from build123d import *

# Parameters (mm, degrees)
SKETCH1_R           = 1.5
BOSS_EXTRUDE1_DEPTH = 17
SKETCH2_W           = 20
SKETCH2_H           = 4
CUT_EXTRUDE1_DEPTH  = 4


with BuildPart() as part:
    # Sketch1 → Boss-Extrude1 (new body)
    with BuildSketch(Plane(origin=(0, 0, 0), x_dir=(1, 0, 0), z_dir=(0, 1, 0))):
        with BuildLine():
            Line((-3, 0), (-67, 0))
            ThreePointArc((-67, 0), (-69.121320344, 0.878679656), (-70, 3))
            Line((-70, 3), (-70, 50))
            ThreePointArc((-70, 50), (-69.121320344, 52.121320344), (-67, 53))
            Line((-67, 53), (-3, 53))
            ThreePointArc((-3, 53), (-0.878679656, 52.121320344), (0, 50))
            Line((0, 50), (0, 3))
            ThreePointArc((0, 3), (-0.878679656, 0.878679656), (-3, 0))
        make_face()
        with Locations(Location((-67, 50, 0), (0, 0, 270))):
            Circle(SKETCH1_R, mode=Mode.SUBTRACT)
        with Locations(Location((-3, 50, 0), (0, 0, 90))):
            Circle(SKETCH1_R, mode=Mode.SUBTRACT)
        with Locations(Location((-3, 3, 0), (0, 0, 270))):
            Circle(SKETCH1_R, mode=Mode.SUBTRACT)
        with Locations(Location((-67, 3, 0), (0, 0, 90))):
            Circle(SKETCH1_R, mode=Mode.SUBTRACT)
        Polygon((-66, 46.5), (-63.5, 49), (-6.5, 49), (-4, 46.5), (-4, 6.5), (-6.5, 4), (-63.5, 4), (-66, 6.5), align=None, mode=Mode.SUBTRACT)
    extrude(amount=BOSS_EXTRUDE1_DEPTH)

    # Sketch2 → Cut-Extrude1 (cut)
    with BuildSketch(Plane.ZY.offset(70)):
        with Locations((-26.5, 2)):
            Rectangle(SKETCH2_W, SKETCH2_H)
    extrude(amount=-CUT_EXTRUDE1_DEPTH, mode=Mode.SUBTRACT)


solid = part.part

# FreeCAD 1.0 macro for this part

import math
import FreeCAD as App
import Part
import Sketcher


def add_polygon(sketch, points):
    """Adds a closed chain of lines whose ends are joined by coincident constraints."""
    first, n = sketch.GeometryCount, len(points)
    for a, b in zip(points, points[1:] + points[:1]):
        sketch.addGeometry(Part.LineSegment(App.Vector(*a, 0), App.Vector(*b, 0)), False)
    for i in range(n):
        sketch.addConstraint(Sketcher.Constraint("Coincident", first + i, 2, first + (i + 1) % n, 1))

doc = App.newDocument("Part")
body = doc.addObject("PartDesign::Body", "Body")

# Sketch on XZ plane
sketch1 = body.newObject("Sketcher::SketchObject", "Sketch")
sketch1.AttachmentSupport = (doc.getObject("XZ_Plane"), [""])
sketch1.MapMode = "FlatFace"
sketch1.addGeometry(Part.LineSegment(App.Vector(-67, 0, 0), App.Vector(-3, 0, 0)), False)  # 0
sketch1.addGeometry(Part.ArcOfCircle(Part.Circle(App.Vector(-3, -3, 0), App.Vector(0, 0, 1), 3), math.radians(0), math.radians(90)), False)  # 1
sketch1.addGeometry(Part.LineSegment(App.Vector(0, -3, 0), App.Vector(0, -50, 0)), False)  # 2
sketch1.addGeometry(Part.ArcOfCircle(Part.Circle(App.Vector(-3, -50, 0), App.Vector(0, 0, 1), 3), math.radians(-90), math.radians(0)), False)  # 3
sketch1.addGeometry(Part.LineSegment(App.Vector(-3, -53, 0), App.Vector(-67, -53, 0)), False)  # 4
sketch1.addGeometry(Part.ArcOfCircle(Part.Circle(App.Vector(-67, -50, 0), App.Vector(0, 0, 1), 3), math.radians(180), math.radians(270)), False)  # 5
sketch1.addGeometry(Part.LineSegment(App.Vector(-70, -50, 0), App.Vector(-70, -3, 0)), False)  # 6
sketch1.addGeometry(Part.ArcOfCircle(Part.Circle(App.Vector(-67, -3, 0), App.Vector(0, 0, 1), 3), math.radians(90), math.radians(180)), False)  # 7
sketch1.addGeometry(Part.Circle(App.Vector(-3, -3, 0), App.Vector(0, 0, 1), 1.5), False)  # 8
sketch1.addGeometry(Part.Circle(App.Vector(-67, -3, 0), App.Vector(0, 0, 1), 1.5), False)  # 9
sketch1.addGeometry(Part.Circle(App.Vector(-3, -50, 0), App.Vector(0, 0, 1), 1.5), False)  # 10
add_polygon(sketch1, [(-66, -46.5), (-63.5, -49), (-6.5, -49), (-4, -46.5), (-4, -6.5), (-6.5, -4), (-63.5, -4), (-66, -6.5)])  # lines 11-18
sketch1.addGeometry(Part.Circle(App.Vector(-67, -50, 0), App.Vector(0, 0, 1), 1.5), False)  # 19
sketch1.addConstraint([
    Sketcher.Constraint("Tangent", 0, 2, 1, 2),
    Sketcher.Constraint("Tangent", 1, 1, 2, 1),
    Sketcher.Constraint("Tangent", 2, 2, 3, 2),
    Sketcher.Constraint("Tangent", 3, 1, 4, 1),
    Sketcher.Constraint("Tangent", 4, 2, 5, 2),
    Sketcher.Constraint("Tangent", 5, 1, 6, 1),
    Sketcher.Constraint("Tangent", 6, 2, 7, 2),
    Sketcher.Constraint("Tangent", 7, 1, 0, 1),
    Sketcher.Constraint("Horizontal", 0),
    Sketcher.Constraint("Vertical", 2),
    Sketcher.Constraint("Horizontal", 4),
    Sketcher.Constraint("Vertical", 6),
    Sketcher.Constraint("Horizontal", 12),
    Sketcher.Constraint("Vertical", 14),
    Sketcher.Constraint("Horizontal", 16),
    Sketcher.Constraint("Vertical", 18),
    Sketcher.Constraint("Coincident", 8, 3, 1, 3),
    Sketcher.Constraint("Coincident", 9, 3, 7, 3),
    Sketcher.Constraint("Coincident", 10, 3, 3, 3),
    Sketcher.Constraint("Coincident", 19, 3, 5, 3),
    Sketcher.Constraint("Equal", 1, 3),
    Sketcher.Constraint("Equal", 3, 5),
    Sketcher.Constraint("Equal", 5, 7),
    Sketcher.Constraint("Equal", 8, 9),
    Sketcher.Constraint("Equal", 9, 10),
    Sketcher.Constraint("Equal", 10, 19),
    Sketcher.Constraint("PointOnObject", 0, 2, -1),
    Sketcher.Constraint("PointOnObject", 1, 1, -2),
    Sketcher.Constraint("Perpendicular", 11, 13),
    Sketcher.Constraint("Perpendicular", 13, 15),
    Sketcher.Constraint("Perpendicular", 15, 17),
    Sketcher.Constraint("Horizontal", 14, 2, 17, 2),
    Sketcher.Constraint("Horizontal", 13, 2, 18, 2),
    Sketcher.Constraint("Vertical", 12, 2, 15, 2),
    Sketcher.Constraint("Vertical", 11, 2, 16, 2),
    Sketcher.Constraint("Diameter", 8, 3.0),
    Sketcher.Constraint("Radius", 1, 3.0),
    Sketcher.Constraint("DistanceX", 0, 1, 0, 2, 64.0),
    Sketcher.Constraint("DistanceX", 12, 1, 12, 2, 57.0),
    Sketcher.Constraint("DistanceY", 2, 2, 2, 1, 47.0),
    Sketcher.Constraint("DistanceY", 14, 1, 14, 2, 40.0),
    Sketcher.Constraint("DistanceY", 11, 2, -1, 1, 49.0),
    Sketcher.Constraint("DistanceX", 13, 2, -1, 1, 4.0),
    Sketcher.Constraint("DistanceY", 15, 2, -1, 1, 4.0),
])
pad1 = body.newObject("PartDesign::Pad", "Pad")
pad1.Profile = sketch1
pad1.Length = 17
pad1.Reversed = True

# Sketch on YZ plane
sketch2 = body.newObject("Sketcher::SketchObject", "Sketch001")
sketch2.AttachmentSupport = (doc.getObject("YZ_Plane"), [""])
sketch2.MapMode = "FlatFace"
sketch2.AttachmentOffset = App.Placement(App.Vector(0, 0, -70), App.Rotation())
add_polygon(sketch2, [(4, -36.5), (0, -36.5), (0, -16.5), (4, -16.5)])  # lines 0-3
sketch2.addConstraint([
    Sketcher.Constraint("Horizontal", 0),
    Sketcher.Constraint("Vertical", 1),
    Sketcher.Constraint("Horizontal", 2),
    Sketcher.Constraint("Vertical", 3),
    Sketcher.Constraint("PointOnObject", 0, 2, -2),
    Sketcher.Constraint("DistanceX", 0, 2, 0, 1, 4.0),
    Sketcher.Constraint("DistanceY", 1, 1, 1, 2, 20.0),
    Sketcher.Constraint("DistanceY", 0, 2, -1, 1, 36.5),
])
pocket1 = body.newObject("PartDesign::Pocket", "Pocket")
pocket1.Profile = sketch2
pocket1.Length = 4
pocket1.Reversed = True

doc.recompute()
